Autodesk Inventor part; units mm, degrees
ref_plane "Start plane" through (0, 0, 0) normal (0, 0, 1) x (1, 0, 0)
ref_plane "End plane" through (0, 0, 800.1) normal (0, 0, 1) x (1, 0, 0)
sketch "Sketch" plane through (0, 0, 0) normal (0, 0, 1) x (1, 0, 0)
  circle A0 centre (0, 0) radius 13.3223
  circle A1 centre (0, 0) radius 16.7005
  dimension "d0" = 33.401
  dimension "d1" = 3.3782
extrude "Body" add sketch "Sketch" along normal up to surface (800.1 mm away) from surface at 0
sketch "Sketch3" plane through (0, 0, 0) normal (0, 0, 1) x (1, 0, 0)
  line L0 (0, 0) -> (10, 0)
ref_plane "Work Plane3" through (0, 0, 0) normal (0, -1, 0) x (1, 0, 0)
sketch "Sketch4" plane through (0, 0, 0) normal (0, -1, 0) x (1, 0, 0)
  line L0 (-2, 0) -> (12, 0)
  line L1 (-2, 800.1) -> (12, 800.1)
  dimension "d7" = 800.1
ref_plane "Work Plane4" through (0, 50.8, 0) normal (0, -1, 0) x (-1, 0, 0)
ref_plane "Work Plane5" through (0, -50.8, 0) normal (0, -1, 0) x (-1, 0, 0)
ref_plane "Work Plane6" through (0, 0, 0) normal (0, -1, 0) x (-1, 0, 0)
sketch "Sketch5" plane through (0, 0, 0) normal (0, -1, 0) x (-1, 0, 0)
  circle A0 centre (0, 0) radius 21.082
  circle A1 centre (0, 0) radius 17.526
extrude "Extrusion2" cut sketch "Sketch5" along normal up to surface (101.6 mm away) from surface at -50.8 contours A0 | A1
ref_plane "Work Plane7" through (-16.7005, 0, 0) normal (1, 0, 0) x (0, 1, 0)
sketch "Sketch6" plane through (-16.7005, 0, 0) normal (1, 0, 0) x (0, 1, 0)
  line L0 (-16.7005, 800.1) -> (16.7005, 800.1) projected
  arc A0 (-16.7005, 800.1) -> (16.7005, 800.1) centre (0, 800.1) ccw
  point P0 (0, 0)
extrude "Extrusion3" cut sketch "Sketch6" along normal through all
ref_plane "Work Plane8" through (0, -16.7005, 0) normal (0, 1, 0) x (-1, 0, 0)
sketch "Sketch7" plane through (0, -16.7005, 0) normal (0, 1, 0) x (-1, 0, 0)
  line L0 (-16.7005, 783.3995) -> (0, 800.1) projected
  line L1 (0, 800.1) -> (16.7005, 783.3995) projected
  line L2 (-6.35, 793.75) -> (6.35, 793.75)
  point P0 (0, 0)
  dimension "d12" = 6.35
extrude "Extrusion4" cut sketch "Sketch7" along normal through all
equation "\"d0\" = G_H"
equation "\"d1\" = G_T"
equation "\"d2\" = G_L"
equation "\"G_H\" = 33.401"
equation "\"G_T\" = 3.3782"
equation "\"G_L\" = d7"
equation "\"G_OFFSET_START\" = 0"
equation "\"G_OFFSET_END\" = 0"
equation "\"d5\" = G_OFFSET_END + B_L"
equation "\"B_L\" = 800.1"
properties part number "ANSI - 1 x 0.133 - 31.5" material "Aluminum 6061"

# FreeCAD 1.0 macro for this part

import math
import FreeCAD as App
import Part
import Sketcher
Q = App.Units.Quantity


def add_polygon(sketch, points):
    """Adds a closed chain of lines whose ends are joined by coincident constraints."""
    first, n = sketch.GeometryCount, len(points)
    for a, b in zip(points, points[1:] + points[:1]):
        sketch.addGeometry(Part.LineSegment(App.Vector(*a, 0), App.Vector(*b, 0)), False)
    for i in range(n):
        sketch.addConstraint(Sketcher.Constraint("Coincident", first + i, 2, first + (i + 1) % n, 1))

doc = App.newDocument("Part")
params = doc.addObject("Spreadsheet::Sheet", "Params")
for row, (alias, value) in enumerate([
    ("sketch1_diameter", "1.315 in"),
    ("sketch1_diameter2", "1.049 in"),
    ("pad1_length", "31.5 in"),
    ("sketch2_diameter", "1.66 in"),
    ("pocket1_length", "4 in"),
], start=1):
    params.set(f"A{row}", alias)
    params.set(f"B{row}", "=" + value)
    params.setAlias(f"B{row}", alias)

body = doc.addObject("PartDesign::Body", "Body")

# Sketch on XY plane
sketch1 = body.newObject("Sketcher::SketchObject", "Sketch")
sketch1.AttachmentSupport = (doc.getObject("XY_Plane"), [""])
sketch1.MapMode = "FlatFace"
sketch1.addGeometry(Part.Circle(App.Vector(0, 0, 0), App.Vector(0, 0, 1), 17), False)
sketch1.addGeometry(Part.Circle(App.Vector(0, 0, 0), App.Vector(0, 0, 1), 13), False)
sketch1.addConstraint(Sketcher.Constraint("Coincident", 0, 3, -1, 1))
sketch1.addConstraint(Sketcher.Constraint("Coincident", 1, 3, -1, 1))
sketch1.addConstraint(Sketcher.Constraint("Diameter", 0, Q("1.315 in")))
sketch1.addConstraint(Sketcher.Constraint("Diameter", 1, Q("1.049 in")))
sketch1.setExpression("Constraints[2]", "Params.sketch1_diameter")
sketch1.setExpression("Constraints[3]", "Params.sketch1_diameter2")
pad1 = body.newObject("PartDesign::Pad", "Pad")
pad1.Profile = sketch1
pad1.setExpression("Length", "Params.pad1_length")

# Sketch on XZ plane
sketch2 = body.newObject("Sketcher::SketchObject", "Sketch001")
sketch2.AttachmentSupport = (doc.getObject("XZ_Plane"), [""])
sketch2.MapMode = "FlatFace"
sketch2.AttachmentOffset = App.Placement(App.Vector(0, 0, -2 * 25.4), App.Rotation())
sketch2.addGeometry(Part.Circle(App.Vector(0, 0, 0), App.Vector(0, 0, 1), 21), False)
sketch2.addConstraint(Sketcher.Constraint("Coincident", 0, 3, -1, 1))
sketch2.addConstraint(Sketcher.Constraint("Diameter", 0, Q("1.66 in")))
sketch2.setExpression("Constraints[1]", "Params.sketch2_diameter")
pocket1 = body.newObject("PartDesign::Pocket", "Pocket")
pocket1.Profile = sketch2
pocket1.setExpression("Length", "Params.pocket1_length")
pocket1.Reversed = True

# Sketch on YZ plane
sketch3 = body.newObject("Sketcher::SketchObject", "Sketch002")
sketch3.AttachmentSupport = (doc.getObject("YZ_Plane"), [""])
sketch3.MapMode = "FlatFace"
sketch3.AttachmentOffset = App.Placement(App.Vector(0, 0, -0.6575 * 25.4), App.Rotation())
sketch3.addGeometry(Part.LineSegment(App.Vector(17, 800, 0), App.Vector(-17, 800, 0)), False)
sketch3.addGeometry(Part.ArcOfCircle(Part.Circle(App.Vector(0, 800, 0), App.Vector(0, 0, 1), 17), math.radians(180), math.radians(360)), False)
sketch3.addConstraint(Sketcher.Constraint("Coincident", 0, 1, 1, 2))
sketch3.addConstraint(Sketcher.Constraint("Coincident", 1, 1, 0, 2))
sketch3.addConstraint(Sketcher.Constraint("Horizontal", 0))
sketch3.addConstraint(Sketcher.Constraint("PointOnObject", 1, 3, -2))
sketch3.addConstraint(Sketcher.Constraint("Horizontal", 1, 3, 0, 1))
sketch3.addConstraint(Sketcher.Constraint("DistanceY", -1, 1, 1, 3, Q("31.5 in")))
sketch3.addConstraint(Sketcher.Constraint("Radius", 1, Q("0.6575 in")))
pocket2 = body.newObject("PartDesign::Pocket", "Pocket001")
pocket2.Profile = sketch3
pocket2.Type = "ThroughAll"
pocket2.Reversed = True

# Sketch on XZ plane
sketch4 = body.newObject("Sketcher::SketchObject", "Sketch003")
sketch4.AttachmentSupport = (doc.getObject("XZ_Plane"), [""])
sketch4.MapMode = "FlatFace"
sketch4.AttachmentOffset = App.Placement(App.Vector(0, 0, 0.6575 * 25.4), App.Rotation())
add_polygon(sketch4, [(0, 800), (6, 794), (-6, 794)])  # lines 0-2
sketch4.addConstraint(Sketcher.Constraint("Horizontal", 1))
sketch4.addConstraint(Sketcher.Constraint("PointOnObject", 2, 2, -2))
sketch4.addConstraint(Sketcher.Constraint("Perpendicular", 0, 2))
sketch4.addConstraint(Sketcher.Constraint("Equal", 0, 2))
sketch4.addConstraint(Sketcher.Constraint("DistanceX", -1, 1, 0, 2, Q("0.25 in")))
sketch4.addConstraint(Sketcher.Constraint("DistanceY", -1, 1, 2, 2, Q("31.5 in")))
pocket3 = body.newObject("PartDesign::Pocket", "Pocket002")
pocket3.Profile = sketch4
pocket3.Type = "ThroughAll"

doc.recompute()
